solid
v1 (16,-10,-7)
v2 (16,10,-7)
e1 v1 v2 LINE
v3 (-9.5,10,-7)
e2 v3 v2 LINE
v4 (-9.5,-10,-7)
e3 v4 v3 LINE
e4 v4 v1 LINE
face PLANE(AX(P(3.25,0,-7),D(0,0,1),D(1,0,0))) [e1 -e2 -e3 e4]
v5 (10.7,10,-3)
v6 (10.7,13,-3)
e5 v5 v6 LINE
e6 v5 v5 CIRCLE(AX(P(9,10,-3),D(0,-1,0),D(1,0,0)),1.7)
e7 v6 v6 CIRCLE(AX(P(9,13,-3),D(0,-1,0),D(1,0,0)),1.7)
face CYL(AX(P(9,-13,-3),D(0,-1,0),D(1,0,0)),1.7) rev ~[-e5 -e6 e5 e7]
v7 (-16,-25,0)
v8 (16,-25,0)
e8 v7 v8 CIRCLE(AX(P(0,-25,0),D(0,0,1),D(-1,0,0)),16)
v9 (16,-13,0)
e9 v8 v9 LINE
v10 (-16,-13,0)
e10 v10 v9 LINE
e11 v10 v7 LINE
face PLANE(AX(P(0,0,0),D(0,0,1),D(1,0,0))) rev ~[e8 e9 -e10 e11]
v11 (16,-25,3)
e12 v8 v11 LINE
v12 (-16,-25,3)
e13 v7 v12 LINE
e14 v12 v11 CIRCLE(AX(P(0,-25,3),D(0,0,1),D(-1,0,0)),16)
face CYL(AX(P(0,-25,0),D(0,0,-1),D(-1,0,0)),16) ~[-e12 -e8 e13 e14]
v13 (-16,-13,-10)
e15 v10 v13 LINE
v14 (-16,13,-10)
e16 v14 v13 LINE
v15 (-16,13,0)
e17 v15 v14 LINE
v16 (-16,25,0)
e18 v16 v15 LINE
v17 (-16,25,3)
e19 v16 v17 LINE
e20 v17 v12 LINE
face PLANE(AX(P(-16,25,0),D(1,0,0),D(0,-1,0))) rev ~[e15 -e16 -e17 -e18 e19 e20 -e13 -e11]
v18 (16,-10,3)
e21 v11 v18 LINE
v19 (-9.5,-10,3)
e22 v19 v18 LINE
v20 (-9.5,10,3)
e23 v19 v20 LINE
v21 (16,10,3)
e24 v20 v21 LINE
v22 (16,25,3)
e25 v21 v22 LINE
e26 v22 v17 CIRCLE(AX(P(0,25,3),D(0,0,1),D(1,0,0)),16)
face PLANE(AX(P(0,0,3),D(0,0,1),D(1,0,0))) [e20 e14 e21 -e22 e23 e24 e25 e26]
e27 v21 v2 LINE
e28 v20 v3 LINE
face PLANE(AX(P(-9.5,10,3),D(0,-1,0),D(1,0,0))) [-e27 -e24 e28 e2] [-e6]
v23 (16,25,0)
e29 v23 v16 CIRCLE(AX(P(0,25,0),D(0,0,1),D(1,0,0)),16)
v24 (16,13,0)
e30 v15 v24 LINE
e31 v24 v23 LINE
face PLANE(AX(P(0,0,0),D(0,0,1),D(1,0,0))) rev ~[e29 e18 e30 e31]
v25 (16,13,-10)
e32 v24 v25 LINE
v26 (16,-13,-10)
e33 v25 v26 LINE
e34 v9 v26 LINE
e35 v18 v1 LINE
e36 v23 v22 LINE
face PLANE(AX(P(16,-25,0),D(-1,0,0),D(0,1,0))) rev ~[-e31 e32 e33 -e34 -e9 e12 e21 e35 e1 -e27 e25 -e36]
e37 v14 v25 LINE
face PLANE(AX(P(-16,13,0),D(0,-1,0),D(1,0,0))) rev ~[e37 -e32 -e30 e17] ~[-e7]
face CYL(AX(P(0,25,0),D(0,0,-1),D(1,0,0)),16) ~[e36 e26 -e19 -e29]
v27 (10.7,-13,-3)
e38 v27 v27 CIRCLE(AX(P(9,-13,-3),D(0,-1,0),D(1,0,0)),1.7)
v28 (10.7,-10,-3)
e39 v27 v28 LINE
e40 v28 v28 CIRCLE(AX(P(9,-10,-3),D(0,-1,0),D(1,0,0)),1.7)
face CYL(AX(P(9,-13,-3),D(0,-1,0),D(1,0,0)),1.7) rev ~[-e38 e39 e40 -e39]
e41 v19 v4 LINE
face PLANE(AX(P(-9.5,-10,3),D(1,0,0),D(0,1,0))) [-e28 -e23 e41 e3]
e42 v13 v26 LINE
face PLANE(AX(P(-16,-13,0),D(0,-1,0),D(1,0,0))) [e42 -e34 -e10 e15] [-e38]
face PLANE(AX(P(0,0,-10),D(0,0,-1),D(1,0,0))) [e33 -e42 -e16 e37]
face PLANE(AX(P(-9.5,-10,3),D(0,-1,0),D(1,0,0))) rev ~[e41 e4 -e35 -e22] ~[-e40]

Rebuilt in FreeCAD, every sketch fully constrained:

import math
import FreeCAD as App
import Part
import Sketcher

V = App.Vector

doc = App.newDocument("Part")
body = doc.addObject("PartDesign::Body", "Body")

# Sketch on XY plane
sketch1 = body.newObject("Sketcher::SketchObject", "Sketch")
sketch1.AttachmentSupport = (doc.getObject("XY_Plane"), [""])
sketch1.MapMode = "FlatFace"
sketch1.addGeometry(Part.LineSegment(V(16, -25, 0), V(16, 25, 0)), False)
sketch1.addGeometry(Part.ArcOfCircle(Part.Circle(V(0, 25, 0), V(0, 0, 1), 16), math.radians(0), math.radians(180)), False)
sketch1.addGeometry(Part.LineSegment(V(-16, 25, 0), V(-16, -25, 0)), False)
sketch1.addGeometry(Part.ArcOfCircle(Part.Circle(V(0, -25, 0), V(0, 0, 1), 16), math.radians(180), math.radians(360)), False)
sketch1.addConstraint(Sketcher.Constraint("Tangent", 0, 2, 1, 1))
sketch1.addConstraint(Sketcher.Constraint("Tangent", 1, 2, 2, 1))
sketch1.addConstraint(Sketcher.Constraint("Tangent", 2, 2, 3, 1))
sketch1.addConstraint(Sketcher.Constraint("Tangent", 3, 2, 0, 1))
sketch1.addConstraint(Sketcher.Constraint("Vertical", 0))
sketch1.addConstraint(Sketcher.Constraint("Vertical", 2))
sketch1.addConstraint(Sketcher.Constraint("Symmetric", 1, 3, 3, 3, -1, 1))
sketch1.addConstraint(Sketcher.Constraint("Radius", 1, 16.0))
sketch1.addConstraint(Sketcher.Constraint("DistanceY", 0, 1, 0, 2, 50.0))
pad1 = body.newObject("PartDesign::Pad", "Pad")
pad1.Profile = sketch1
pad1.Length = 3

# Sketch on XY plane
sketch2 = body.newObject("Sketcher::SketchObject", "Sketch001")
sketch2.AttachmentSupport = (doc.getObject("XY_Plane"), [""])
sketch2.MapMode = "FlatFace"
sketch2.addGeometry(Part.LineSegment(V(-16, -13, 0), V(-16, 13, 0)), False)
sketch2.addGeometry(Part.LineSegment(V(-16, 13, 0), V(16, 13, 0)), False)
sketch2.addGeometry(Part.LineSegment(V(16, 13, 0), V(16, -13, 0)), False)
sketch2.addGeometry(Part.LineSegment(V(16, -13, 0), V(-16, -13, 0)), False)
sketch2.addConstraint(Sketcher.Constraint("Coincident", 0, 2, 1, 1))
sketch2.addConstraint(Sketcher.Constraint("Coincident", 1, 2, 2, 1))
sketch2.addConstraint(Sketcher.Constraint("Coincident", 2, 2, 3, 1))
sketch2.addConstraint(Sketcher.Constraint("Coincident", 3, 2, 0, 1))
sketch2.addConstraint(Sketcher.Constraint("Vertical", 0))
sketch2.addConstraint(Sketcher.Constraint("Horizontal", 1))
sketch2.addConstraint(Sketcher.Constraint("Vertical", 2))
sketch2.addConstraint(Sketcher.Constraint("Horizontal", 3))
sketch2.addConstraint(Sketcher.Constraint("Symmetric", 0, 2, 2, 2, -1, 1))
sketch2.addConstraint(Sketcher.Constraint("DistanceX", 1, 1, 1, 2, 32.0))
sketch2.addConstraint(Sketcher.Constraint("DistanceY", 0, 1, 0, 2, 26.0))
pad2 = body.newObject("PartDesign::Pad", "Pad001")
pad2.Profile = sketch2
pad2.Length = 10
pad2.Reversed = True

# Sketch on XY plane
sketch3 = body.newObject("Sketcher::SketchObject", "Sketch002")
sketch3.AttachmentSupport = (doc.getObject("XY_Plane"), [""])
sketch3.MapMode = "FlatFace"
sketch3.AttachmentOffset = App.Placement(V(0, 0, 3), App.Rotation())
sketch3.addGeometry(Part.LineSegment(V(-10, 10, 0), V(-10, -10, 0)), False)
sketch3.addGeometry(Part.LineSegment(V(-10, -10, 0), V(16, -10, 0)), False)
sketch3.addGeometry(Part.LineSegment(V(16, -10, 0), V(16, 10, 0)), False)
sketch3.addGeometry(Part.LineSegment(V(16, 10, 0), V(-10, 10, 0)), False)
sketch3.addConstraint(Sketcher.Constraint("Coincident", 0, 2, 1, 1))
sketch3.addConstraint(Sketcher.Constraint("Coincident", 1, 2, 2, 1))
sketch3.addConstraint(Sketcher.Constraint("Coincident", 2, 2, 3, 1))
sketch3.addConstraint(Sketcher.Constraint("Coincident", 3, 2, 0, 1))
sketch3.addConstraint(Sketcher.Constraint("Vertical", 0))
sketch3.addConstraint(Sketcher.Constraint("Horizontal", 1))
sketch3.addConstraint(Sketcher.Constraint("Vertical", 2))
sketch3.addConstraint(Sketcher.Constraint("Horizontal", 3))
sketch3.addConstraint(Sketcher.Constraint("DistanceY", 0, 2, 0, 1, 20.0))
sketch3.addConstraint(Sketcher.Constraint("DistanceX", 1, 1, 1, 2, 25.5))
sketch3.addConstraint(Sketcher.Constraint("DistanceY", 0, 2, -1, 1, 10.0))
sketch3.addConstraint(Sketcher.Constraint("DistanceX", -1, 1, 1, 2, 16.0))
pocket1 = body.newObject("PartDesign::Pocket", "Pocket")
pocket1.Profile = sketch3
pocket1.Length = 10

# Sketch on XZ plane
sketch4 = body.newObject("Sketcher::SketchObject", "Sketch003")
sketch4.AttachmentSupport = (doc.getObject("XZ_Plane"), [""])
sketch4.MapMode = "FlatFace"
sketch4.AttachmentOffset = App.Placement(V(0, 0, 13), App.Rotation())
sketch4.addGeometry(Part.Circle(V(9, -3, 0), V(0, 0, 1), 1.7), False)
sketch4.addConstraint(Sketcher.Constraint("Diameter", 0, 3.4))
sketch4.addConstraint(Sketcher.Constraint("DistanceX", -1, 1, 0, 3, 9.0))
sketch4.addConstraint(Sketcher.Constraint("DistanceY", 0, 3, -1, 1, 3.0))
pocket2 = body.newObject("PartDesign::Pocket", "Pocket001")
pocket2.Profile = sketch4
pocket2.Length = 101.6

doc.recompute()
